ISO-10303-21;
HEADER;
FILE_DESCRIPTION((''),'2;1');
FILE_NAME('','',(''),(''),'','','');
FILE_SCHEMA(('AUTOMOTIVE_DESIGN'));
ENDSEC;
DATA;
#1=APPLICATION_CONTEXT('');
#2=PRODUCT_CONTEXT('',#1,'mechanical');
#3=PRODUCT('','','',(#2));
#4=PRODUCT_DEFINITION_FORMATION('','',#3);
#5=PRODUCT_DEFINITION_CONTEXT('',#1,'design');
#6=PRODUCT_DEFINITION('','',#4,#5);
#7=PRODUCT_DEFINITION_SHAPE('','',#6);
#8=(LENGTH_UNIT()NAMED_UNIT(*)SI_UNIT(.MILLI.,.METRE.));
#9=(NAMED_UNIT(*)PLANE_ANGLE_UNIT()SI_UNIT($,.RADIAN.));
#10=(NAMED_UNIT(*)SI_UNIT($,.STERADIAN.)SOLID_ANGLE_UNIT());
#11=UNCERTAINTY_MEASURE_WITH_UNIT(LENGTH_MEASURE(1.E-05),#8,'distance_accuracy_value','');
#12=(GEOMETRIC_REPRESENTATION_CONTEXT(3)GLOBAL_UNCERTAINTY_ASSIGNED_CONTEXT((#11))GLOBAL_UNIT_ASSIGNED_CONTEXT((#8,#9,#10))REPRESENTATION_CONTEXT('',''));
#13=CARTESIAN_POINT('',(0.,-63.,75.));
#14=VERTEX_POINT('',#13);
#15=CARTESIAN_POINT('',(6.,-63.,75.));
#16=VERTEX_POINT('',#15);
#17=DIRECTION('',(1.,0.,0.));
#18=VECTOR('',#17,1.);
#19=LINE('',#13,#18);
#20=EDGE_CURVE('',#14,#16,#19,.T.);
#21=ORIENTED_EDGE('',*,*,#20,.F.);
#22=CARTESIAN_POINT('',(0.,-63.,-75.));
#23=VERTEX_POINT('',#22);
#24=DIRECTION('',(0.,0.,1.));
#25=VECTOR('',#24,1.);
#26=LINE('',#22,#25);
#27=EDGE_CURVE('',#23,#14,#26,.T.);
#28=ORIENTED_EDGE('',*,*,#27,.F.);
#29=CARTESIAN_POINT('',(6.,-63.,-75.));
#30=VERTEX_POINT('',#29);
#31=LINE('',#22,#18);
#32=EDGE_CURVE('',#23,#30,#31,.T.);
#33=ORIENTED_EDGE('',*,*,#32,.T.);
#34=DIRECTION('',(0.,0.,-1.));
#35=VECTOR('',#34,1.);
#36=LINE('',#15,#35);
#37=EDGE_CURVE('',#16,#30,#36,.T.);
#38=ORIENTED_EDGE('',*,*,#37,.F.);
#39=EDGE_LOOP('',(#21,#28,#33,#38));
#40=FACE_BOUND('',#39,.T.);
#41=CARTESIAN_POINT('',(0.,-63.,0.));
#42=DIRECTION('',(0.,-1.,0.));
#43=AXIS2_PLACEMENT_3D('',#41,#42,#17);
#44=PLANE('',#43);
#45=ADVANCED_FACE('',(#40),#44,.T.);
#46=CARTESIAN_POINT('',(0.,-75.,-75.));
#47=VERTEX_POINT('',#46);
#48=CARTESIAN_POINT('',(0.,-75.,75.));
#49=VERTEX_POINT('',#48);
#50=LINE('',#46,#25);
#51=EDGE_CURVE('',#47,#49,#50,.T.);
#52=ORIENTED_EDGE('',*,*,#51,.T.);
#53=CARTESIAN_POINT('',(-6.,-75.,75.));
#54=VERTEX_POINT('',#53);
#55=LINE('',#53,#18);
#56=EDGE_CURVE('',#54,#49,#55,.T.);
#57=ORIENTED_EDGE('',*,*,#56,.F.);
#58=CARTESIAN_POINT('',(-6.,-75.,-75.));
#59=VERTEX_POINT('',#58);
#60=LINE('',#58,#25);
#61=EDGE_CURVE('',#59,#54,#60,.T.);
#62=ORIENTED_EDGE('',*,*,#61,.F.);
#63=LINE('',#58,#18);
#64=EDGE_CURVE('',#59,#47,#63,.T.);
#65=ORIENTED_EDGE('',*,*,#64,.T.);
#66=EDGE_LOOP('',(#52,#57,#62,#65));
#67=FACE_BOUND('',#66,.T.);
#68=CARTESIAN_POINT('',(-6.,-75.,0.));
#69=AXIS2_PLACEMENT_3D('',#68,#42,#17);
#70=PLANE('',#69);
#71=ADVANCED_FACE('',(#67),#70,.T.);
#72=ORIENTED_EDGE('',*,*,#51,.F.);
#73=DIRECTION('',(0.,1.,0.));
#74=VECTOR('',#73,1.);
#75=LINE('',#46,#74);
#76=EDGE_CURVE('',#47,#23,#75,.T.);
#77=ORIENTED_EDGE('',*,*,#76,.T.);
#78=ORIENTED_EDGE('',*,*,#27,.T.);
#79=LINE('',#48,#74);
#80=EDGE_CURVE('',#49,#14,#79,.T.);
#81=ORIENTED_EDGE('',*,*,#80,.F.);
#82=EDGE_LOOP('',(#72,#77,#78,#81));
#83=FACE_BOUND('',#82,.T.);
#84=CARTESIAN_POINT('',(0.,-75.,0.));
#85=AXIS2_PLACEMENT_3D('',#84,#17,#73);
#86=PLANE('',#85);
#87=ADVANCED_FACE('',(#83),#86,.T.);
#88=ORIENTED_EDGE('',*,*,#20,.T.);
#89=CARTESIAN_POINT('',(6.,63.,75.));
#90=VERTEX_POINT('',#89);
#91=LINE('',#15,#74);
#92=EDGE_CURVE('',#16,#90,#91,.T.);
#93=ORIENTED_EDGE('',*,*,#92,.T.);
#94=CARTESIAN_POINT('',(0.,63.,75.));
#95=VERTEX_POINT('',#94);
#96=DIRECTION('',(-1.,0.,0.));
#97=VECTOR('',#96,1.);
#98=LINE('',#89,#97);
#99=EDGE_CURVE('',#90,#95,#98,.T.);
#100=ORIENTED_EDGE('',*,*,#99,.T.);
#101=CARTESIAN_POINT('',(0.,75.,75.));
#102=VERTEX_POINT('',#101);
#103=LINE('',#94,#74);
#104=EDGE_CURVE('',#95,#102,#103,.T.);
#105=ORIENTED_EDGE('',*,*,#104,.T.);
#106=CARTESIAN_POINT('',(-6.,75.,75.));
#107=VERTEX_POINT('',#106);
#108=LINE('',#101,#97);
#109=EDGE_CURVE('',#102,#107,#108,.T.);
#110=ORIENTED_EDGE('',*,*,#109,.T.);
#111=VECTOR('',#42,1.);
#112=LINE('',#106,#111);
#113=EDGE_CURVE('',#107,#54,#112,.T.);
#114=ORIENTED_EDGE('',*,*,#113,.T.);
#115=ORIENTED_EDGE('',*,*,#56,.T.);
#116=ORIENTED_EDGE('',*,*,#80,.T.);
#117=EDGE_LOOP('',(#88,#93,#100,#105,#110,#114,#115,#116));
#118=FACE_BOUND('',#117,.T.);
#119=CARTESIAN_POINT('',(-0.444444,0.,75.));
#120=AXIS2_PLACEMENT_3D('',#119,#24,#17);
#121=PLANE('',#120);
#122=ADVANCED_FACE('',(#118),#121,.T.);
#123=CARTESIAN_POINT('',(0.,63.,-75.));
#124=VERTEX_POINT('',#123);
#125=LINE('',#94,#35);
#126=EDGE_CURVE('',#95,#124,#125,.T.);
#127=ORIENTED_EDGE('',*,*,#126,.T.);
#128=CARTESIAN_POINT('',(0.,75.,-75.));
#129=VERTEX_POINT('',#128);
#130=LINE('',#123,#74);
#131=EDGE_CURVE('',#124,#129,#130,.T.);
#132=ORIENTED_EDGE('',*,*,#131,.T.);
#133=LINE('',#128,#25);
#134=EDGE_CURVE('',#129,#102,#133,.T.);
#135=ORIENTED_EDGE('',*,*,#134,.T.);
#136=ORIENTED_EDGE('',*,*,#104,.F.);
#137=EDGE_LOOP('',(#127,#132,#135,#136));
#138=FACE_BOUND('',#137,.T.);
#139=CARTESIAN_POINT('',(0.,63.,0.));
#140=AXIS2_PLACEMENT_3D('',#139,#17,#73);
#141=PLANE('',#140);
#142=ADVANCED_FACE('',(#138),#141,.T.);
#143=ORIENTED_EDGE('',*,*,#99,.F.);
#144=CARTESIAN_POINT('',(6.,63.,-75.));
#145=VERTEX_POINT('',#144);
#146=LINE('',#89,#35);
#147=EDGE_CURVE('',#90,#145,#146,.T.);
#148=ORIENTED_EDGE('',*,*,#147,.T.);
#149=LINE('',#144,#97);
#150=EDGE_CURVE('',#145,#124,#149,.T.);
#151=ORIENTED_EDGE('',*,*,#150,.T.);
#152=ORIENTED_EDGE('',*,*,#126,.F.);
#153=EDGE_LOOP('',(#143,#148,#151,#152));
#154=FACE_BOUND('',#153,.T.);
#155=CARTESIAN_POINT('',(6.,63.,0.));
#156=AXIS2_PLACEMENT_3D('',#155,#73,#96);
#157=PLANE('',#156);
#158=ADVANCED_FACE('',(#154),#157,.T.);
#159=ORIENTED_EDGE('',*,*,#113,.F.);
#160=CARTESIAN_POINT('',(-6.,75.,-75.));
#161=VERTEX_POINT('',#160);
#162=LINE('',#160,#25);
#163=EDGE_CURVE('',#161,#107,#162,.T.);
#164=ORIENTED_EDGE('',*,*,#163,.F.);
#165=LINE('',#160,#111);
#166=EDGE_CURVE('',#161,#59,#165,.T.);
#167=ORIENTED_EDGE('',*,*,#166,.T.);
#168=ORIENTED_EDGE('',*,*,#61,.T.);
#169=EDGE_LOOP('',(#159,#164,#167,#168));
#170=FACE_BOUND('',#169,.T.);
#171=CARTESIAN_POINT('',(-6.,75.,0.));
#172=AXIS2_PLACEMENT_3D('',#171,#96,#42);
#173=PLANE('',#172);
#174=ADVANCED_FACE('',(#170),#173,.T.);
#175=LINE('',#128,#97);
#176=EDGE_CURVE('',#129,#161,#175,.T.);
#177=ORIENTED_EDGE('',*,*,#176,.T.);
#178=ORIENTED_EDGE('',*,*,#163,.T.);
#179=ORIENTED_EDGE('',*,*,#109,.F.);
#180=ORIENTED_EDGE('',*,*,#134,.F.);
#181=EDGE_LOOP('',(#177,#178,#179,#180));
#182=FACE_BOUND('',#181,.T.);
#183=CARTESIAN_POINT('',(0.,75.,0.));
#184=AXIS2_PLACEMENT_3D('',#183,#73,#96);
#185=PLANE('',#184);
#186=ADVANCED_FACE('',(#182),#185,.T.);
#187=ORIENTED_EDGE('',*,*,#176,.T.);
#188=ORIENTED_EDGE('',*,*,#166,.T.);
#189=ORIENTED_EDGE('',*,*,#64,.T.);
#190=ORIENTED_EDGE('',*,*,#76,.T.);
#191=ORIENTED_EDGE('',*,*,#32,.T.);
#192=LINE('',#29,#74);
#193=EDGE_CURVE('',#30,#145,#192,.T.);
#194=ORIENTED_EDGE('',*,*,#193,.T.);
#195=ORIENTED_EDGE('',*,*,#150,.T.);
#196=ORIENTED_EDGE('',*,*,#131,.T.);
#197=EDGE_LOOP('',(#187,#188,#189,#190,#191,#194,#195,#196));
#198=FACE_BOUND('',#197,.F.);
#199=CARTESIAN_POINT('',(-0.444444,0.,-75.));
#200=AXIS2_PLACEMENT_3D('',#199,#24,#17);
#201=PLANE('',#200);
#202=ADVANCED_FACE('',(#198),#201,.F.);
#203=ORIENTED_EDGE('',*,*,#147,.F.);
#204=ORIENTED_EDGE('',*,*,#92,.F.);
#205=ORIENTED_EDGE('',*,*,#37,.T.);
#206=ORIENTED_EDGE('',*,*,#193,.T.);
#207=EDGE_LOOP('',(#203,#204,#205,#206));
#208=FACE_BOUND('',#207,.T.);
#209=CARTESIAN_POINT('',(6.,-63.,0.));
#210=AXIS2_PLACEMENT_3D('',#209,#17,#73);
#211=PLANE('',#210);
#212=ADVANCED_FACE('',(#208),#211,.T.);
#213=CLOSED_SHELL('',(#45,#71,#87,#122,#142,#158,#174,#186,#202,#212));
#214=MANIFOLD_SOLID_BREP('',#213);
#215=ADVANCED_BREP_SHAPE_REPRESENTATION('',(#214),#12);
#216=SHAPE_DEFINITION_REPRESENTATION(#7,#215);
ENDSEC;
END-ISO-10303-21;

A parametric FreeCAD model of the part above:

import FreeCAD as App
import Part
import Sketcher
from FreeCAD import Vector

doc = App.newDocument("Part")
params = doc.addObject("Spreadsheet::Sheet", "Params")
for row, (alias, value) in enumerate([
    ("sketch1_width", "6 mm"),
    ("sketch1_height", "12 mm"),
    ("sketch1_height2", "150 mm"),
    ("pad1_length", "150 mm"),
], start=1):
    params.set(f"A{row}", alias)
    params.set(f"B{row}", "=" + value)
    params.setAlias(f"B{row}", alias)

body = doc.addObject("PartDesign::Body", "Body")

# Sketch on XY plane
sketch1 = body.newObject("Sketcher::SketchObject", "Sketch")
sketch1.AttachmentSupport = (doc.getObject("XY_Plane"), [""])
sketch1.MapMode = "FlatFace"
sketch1.addGeometry([
    Part.LineSegment(Vector(0, 63, 0), Vector(0, 75, 0)),  # 0
    Part.LineSegment(Vector(0, 75, 0), Vector(-6, 75, 0)),  # 1
    Part.LineSegment(Vector(-6, 75, 0), Vector(-6, -75, 0)),  # 2
    Part.LineSegment(Vector(-6, -75, 0), Vector(0, -75, 0)),  # 3
    Part.LineSegment(Vector(0, -75, 0), Vector(0, -63, 0)),  # 4
    Part.LineSegment(Vector(0, -63, 0), Vector(6, -63, 0)),  # 5
    Part.LineSegment(Vector(6, -63, 0), Vector(6, 63, 0)),  # 6
    Part.LineSegment(Vector(6, 63, 0), Vector(0, 63, 0)),  # 7
], False)
sketch1.addConstraint([
    Sketcher.Constraint("Coincident", 0, 2, 1, 1),
    Sketcher.Constraint("Coincident", 1, 2, 2, 1),
    Sketcher.Constraint("Coincident", 2, 2, 3, 1),
    Sketcher.Constraint("Coincident", 3, 2, 4, 1),
    Sketcher.Constraint("Coincident", 4, 2, 5, 1),
    Sketcher.Constraint("Coincident", 5, 2, 6, 1),
    Sketcher.Constraint("Coincident", 6, 2, 7, 1),
    Sketcher.Constraint("Coincident", 7, 2, 0, 1),
    Sketcher.Constraint("Vertical", 0),
    Sketcher.Constraint("Horizontal", 1),
    Sketcher.Constraint("Vertical", 2),
    Sketcher.Constraint("Horizontal", 3),
    Sketcher.Constraint("Vertical", 4),
    Sketcher.Constraint("Horizontal", 5),
    Sketcher.Constraint("Vertical", 6),
    Sketcher.Constraint("Horizontal", 7),
    Sketcher.Constraint("Symmetric", 0, 2, 3, 2, -1, 1),
    Sketcher.Constraint("Symmetric", 4, 2, 7, 2, -1),
    Sketcher.Constraint("Equal", 3, 5),
    Sketcher.Constraint("DistanceX", 1, 2, 1, 1, 6.0),
    Sketcher.Constraint("DistanceY", 0, 1, 0, 2, 12.0),
    Sketcher.Constraint("DistanceY", 2, 2, 2, 1, 150.0),
])
sketch1.setExpression("Constraints[19]", "Params.sketch1_width")
sketch1.setExpression("Constraints[20]", "Params.sketch1_height")
sketch1.setExpression("Constraints[21]", "Params.sketch1_height2")
pad1 = body.newObject("PartDesign::Pad", "Pad")
pad1.Profile = sketch1
pad1.setExpression("Length", "Params.pad1_length")
pad1.Midplane = True

doc.recompute()
